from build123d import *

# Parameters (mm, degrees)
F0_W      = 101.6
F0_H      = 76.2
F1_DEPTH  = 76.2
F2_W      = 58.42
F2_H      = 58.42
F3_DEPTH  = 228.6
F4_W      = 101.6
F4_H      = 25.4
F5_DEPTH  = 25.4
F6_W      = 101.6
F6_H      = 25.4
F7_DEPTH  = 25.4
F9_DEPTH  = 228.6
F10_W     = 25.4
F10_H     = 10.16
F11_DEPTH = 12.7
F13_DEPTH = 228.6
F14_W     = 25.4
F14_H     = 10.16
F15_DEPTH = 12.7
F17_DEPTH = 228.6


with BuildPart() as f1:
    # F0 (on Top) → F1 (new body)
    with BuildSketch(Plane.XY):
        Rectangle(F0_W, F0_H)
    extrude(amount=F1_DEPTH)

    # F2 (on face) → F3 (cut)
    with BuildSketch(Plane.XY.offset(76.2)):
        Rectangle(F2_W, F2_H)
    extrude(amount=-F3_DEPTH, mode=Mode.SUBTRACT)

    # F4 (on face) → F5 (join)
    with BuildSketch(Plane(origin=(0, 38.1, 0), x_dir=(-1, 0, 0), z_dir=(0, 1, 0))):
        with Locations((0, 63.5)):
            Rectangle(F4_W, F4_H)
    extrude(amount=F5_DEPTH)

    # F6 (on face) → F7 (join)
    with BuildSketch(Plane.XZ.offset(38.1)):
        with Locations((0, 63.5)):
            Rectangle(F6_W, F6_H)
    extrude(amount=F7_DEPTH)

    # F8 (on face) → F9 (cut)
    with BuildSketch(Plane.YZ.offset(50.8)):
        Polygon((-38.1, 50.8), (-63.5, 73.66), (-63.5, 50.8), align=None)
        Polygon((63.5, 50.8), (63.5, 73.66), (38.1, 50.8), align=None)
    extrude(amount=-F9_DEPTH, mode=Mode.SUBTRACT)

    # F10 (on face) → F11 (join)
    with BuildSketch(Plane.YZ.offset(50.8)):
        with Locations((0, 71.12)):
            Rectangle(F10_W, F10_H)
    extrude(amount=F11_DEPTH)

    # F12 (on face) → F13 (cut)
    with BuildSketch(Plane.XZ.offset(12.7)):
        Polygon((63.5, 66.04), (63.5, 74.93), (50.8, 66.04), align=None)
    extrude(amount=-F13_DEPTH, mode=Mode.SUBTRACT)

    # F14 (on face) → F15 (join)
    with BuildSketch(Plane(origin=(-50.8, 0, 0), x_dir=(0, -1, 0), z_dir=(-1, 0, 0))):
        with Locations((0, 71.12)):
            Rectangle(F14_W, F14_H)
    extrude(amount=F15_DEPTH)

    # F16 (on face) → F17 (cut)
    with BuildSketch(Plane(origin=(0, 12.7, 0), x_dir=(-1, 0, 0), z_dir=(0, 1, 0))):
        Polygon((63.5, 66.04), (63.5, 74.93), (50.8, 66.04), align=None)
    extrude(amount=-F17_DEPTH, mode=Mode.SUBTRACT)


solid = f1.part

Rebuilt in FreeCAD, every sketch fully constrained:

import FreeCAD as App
import Part
import Sketcher
from FreeCAD import Vector
Q = App.Units.Quantity


def add_polygon(sketch, points):
    """Adds a closed chain of lines whose ends are joined by coincident constraints."""
    first, n = sketch.GeometryCount, len(points)
    for a, b in zip(points, points[1:] + points[:1]):
        sketch.addGeometry(Part.LineSegment(App.Vector(*a, 0), App.Vector(*b, 0)), False)
    for i in range(n):
        sketch.addConstraint(Sketcher.Constraint("Coincident", first + i, 2, first + (i + 1) % n, 1))

doc = App.newDocument("Part")
body = doc.addObject("PartDesign::Body", "Body")

# Sketch on XY plane
sketch1 = body.newObject("Sketcher::SketchObject", "Sketch")
sketch1.AttachmentSupport = (doc.getObject("XY_Plane"), [""])
sketch1.MapMode = "FlatFace"
add_polygon(sketch1, [(-51, 38), (-51, -38), (51, -38), (51, 38)])  # lines 0-3
sketch1.addConstraint([
    Sketcher.Constraint("Vertical", 0),
    Sketcher.Constraint("Horizontal", 1),
    Sketcher.Constraint("Vertical", 2),
    Sketcher.Constraint("Horizontal", 3),
    Sketcher.Constraint("Symmetric", 0, 2, 2, 2, -1, 1),
    Sketcher.Constraint("DistanceX", 1, 1, 1, 2, Q("4 in")),
    Sketcher.Constraint("DistanceY", 0, 2, 0, 1, Q("3 in")),
])
pad1 = body.newObject("PartDesign::Pad", "Pad")
pad1.Profile = sketch1
pad1.Length = Q("3 in")

# Sketch on XY plane
sketch2 = body.newObject("Sketcher::SketchObject", "Sketch001")
sketch2.AttachmentSupport = (doc.getObject("XY_Plane"), [""])
sketch2.MapMode = "FlatFace"
sketch2.AttachmentOffset = App.Placement(Vector(0, 0, 3 * 25.4), App.Rotation())
add_polygon(sketch2, [(-29, 29), (-29, -29), (29, -29), (29, 29)])  # lines 0-3
sketch2.addConstraint([
    Sketcher.Constraint("Vertical", 0),
    Sketcher.Constraint("Horizontal", 1),
    Sketcher.Constraint("Vertical", 2),
    Sketcher.Constraint("Horizontal", 3),
    Sketcher.Constraint("Symmetric", 0, 2, 2, 2, -1, 1),
    Sketcher.Constraint("Equal", 3, 0),
    Sketcher.Constraint("DistanceX", 1, 1, 1, 2, Q("2.3 in")),
])
pocket1 = body.newObject("PartDesign::Pocket", "Pocket")
pocket1.Profile = sketch2
pocket1.Length = Q("9 in")

# Sketch on XZ plane
sketch3 = body.newObject("Sketcher::SketchObject", "Sketch002")
sketch3.AttachmentSupport = (doc.getObject("XZ_Plane"), [""])
sketch3.MapMode = "FlatFace"
sketch3.AttachmentOffset = App.Placement(Vector(0, 0, -1.5 * 25.4), App.Rotation())
add_polygon(sketch3, [(51, 76), (51, 51), (-51, 51), (-51, 76)])  # lines 0-3
sketch3.addConstraint([
    Sketcher.Constraint("Vertical", 0),
    Sketcher.Constraint("Horizontal", 1),
    Sketcher.Constraint("Vertical", 2),
    Sketcher.Constraint("Horizontal", 3),
    Sketcher.Constraint("DistanceX", 1, 2, 1, 1, Q("4 in")),
    Sketcher.Constraint("DistanceY", 0, 2, 0, 1, Q("1 in")),
    Sketcher.Constraint("DistanceX", -1, 1, 0, 2, Q("2 in")),
    Sketcher.Constraint("DistanceY", -1, 1, 0, 2, Q("2 in")),
])
pad2 = body.newObject("PartDesign::Pad", "Pad001")
pad2.Profile = sketch3
pad2.Length = Q("1 in")
pad2.Reversed = True

# Sketch on XZ plane
sketch4 = body.newObject("Sketcher::SketchObject", "Sketch003")
sketch4.AttachmentSupport = (doc.getObject("XZ_Plane"), [""])
sketch4.MapMode = "FlatFace"
sketch4.AttachmentOffset = App.Placement(Vector(0, 0, 1.5 * 25.4), App.Rotation())
add_polygon(sketch4, [(-51, 76), (-51, 51), (51, 51), (51, 76)])  # lines 0-3
sketch4.addConstraint([
    Sketcher.Constraint("Vertical", 0),
    Sketcher.Constraint("Horizontal", 1),
    Sketcher.Constraint("Vertical", 2),
    Sketcher.Constraint("Horizontal", 3),
    Sketcher.Constraint("DistanceX", 1, 1, 1, 2, Q("4 in")),
    Sketcher.Constraint("DistanceY", 0, 2, 0, 1, Q("1 in")),
    Sketcher.Constraint("DistanceX", 0, 2, -1, 1, Q("2 in")),
    Sketcher.Constraint("DistanceY", -1, 1, 0, 2, Q("2 in")),
])
pad3 = body.newObject("PartDesign::Pad", "Pad002")
pad3.Profile = sketch4
pad3.Length = Q("1 in")

# Sketch on YZ plane
sketch5 = body.newObject("Sketcher::SketchObject", "Sketch004")
sketch5.AttachmentSupport = (doc.getObject("YZ_Plane"), [""])
sketch5.MapMode = "FlatFace"
sketch5.AttachmentOffset = App.Placement(Vector(0, 0, 2 * 25.4), App.Rotation())
add_polygon(sketch5, [(-38, 51), (-64, 74), (-64, 51)])  # lines 0-2
add_polygon(sketch5, [(64, 51), (64, 74), (38, 51)])  # lines 3-5
sketch5.addConstraint([
    Sketcher.Constraint("Vertical", 1),
    Sketcher.Constraint("Horizontal", 2),
    Sketcher.Constraint("Vertical", 3),
    Sketcher.Constraint("Horizontal", 5),
    Sketcher.Constraint("Symmetric", 0, 2, 3, 2, -2),
    Sketcher.Constraint("Symmetric", 2, 2, 4, 2, -2),
    Sketcher.Constraint("DistanceX", 2, 1, 2, 2, Q("1 in")),
    Sketcher.Constraint("DistanceY", 1, 2, 1, 1, Q("0.9 in")),
    Sketcher.Constraint("DistanceY", -1, 1, 1, 2, Q("2 in")),
    Sketcher.Constraint("DistanceX", 2, 2, 3, 2, Q("4 in")),
])
pocket2 = body.newObject("PartDesign::Pocket", "Pocket001")
pocket2.Profile = sketch5
pocket2.Length = Q("9 in")

# Sketch on YZ plane
sketch6 = body.newObject("Sketcher::SketchObject", "Sketch005")
sketch6.AttachmentSupport = (doc.getObject("YZ_Plane"), [""])
sketch6.MapMode = "FlatFace"
sketch6.AttachmentOffset = App.Placement(Vector(0, 0, 2 * 25.4), App.Rotation())
add_polygon(sketch6, [(-13, 76), (-13, 66), (13, 66), (13, 76)])  # lines 0-3
sketch6.addConstraint([
    Sketcher.Constraint("Vertical", 0),
    Sketcher.Constraint("Horizontal", 1),
    Sketcher.Constraint("Vertical", 2),
    Sketcher.Constraint("Horizontal", 3),
    Sketcher.Constraint("DistanceX", 1, 1, 1, 2, Q("1 in")),
    Sketcher.Constraint("DistanceY", 0, 2, 0, 1, Q("0.4 in")),
    Sketcher.Constraint("DistanceY", -1, 1, 2, 2, Q("3 in")),
    Sketcher.Constraint("DistanceX", 0, 2, -1, 1, Q("0.5 in")),
])
pad4 = body.newObject("PartDesign::Pad", "Pad003")
pad4.Profile = sketch6
pad4.Length = Q("0.5 in")

# Sketch on XZ plane
sketch7 = body.newObject("Sketcher::SketchObject", "Sketch006")
sketch7.AttachmentSupport = (doc.getObject("XZ_Plane"), [""])
sketch7.MapMode = "FlatFace"
sketch7.AttachmentOffset = App.Placement(Vector(0, 0, 0.5 * 25.4), App.Rotation())
add_polygon(sketch7, [(64, 66), (64, 75), (51, 66)])  # lines 0-2
sketch7.addConstraint([
    Sketcher.Constraint("Vertical", 0),
    Sketcher.Constraint("Horizontal", 2),
    Sketcher.Constraint("DistanceX", 2, 1, 2, 2, Q("0.5 in")),
    Sketcher.Constraint("DistanceX", -1, 1, 1, 2, Q("2 in")),
    Sketcher.Constraint("DistanceY", 0, 1, 0, 2, Q("0.35 in")),
    Sketcher.Constraint("DistanceY", -1, 1, 1, 2, Q("2.6 in")),
])
pocket3 = body.newObject("PartDesign::Pocket", "Pocket002")
pocket3.Profile = sketch7
pocket3.Length = Q("9 in")

# Sketch on YZ plane
sketch8 = body.newObject("Sketcher::SketchObject", "Sketch007")
sketch8.AttachmentSupport = (doc.getObject("YZ_Plane"), [""])
sketch8.MapMode = "FlatFace"
sketch8.AttachmentOffset = App.Placement(Vector(0, 0, -2 * 25.4), App.Rotation())
add_polygon(sketch8, [(13, 76), (13, 66), (-13, 66), (-13, 76)])  # lines 0-3
sketch8.addConstraint([
    Sketcher.Constraint("Vertical", 0),
    Sketcher.Constraint("Horizontal", 1),
    Sketcher.Constraint("Vertical", 2),
    Sketcher.Constraint("Horizontal", 3),
    Sketcher.Constraint("DistanceX", 1, 2, 1, 1, Q("1 in")),
    Sketcher.Constraint("DistanceY", 0, 2, 0, 1, Q("0.4 in")),
    Sketcher.Constraint("DistanceY", -1, 1, 2, 2, Q("3 in")),
    Sketcher.Constraint("DistanceX", -1, 1, 0, 2, Q("0.5 in")),
])
pad5 = body.newObject("PartDesign::Pad", "Pad004")
pad5.Profile = sketch8
pad5.Length = Q("0.5 in")
pad5.Reversed = True

# Sketch on XZ plane
sketch9 = body.newObject("Sketcher::SketchObject", "Sketch008")
sketch9.AttachmentSupport = (doc.getObject("XZ_Plane"), [""])
sketch9.MapMode = "FlatFace"
sketch9.AttachmentOffset = App.Placement(Vector(0, 0, -0.5 * 25.4), App.Rotation())
add_polygon(sketch9, [(-64, 66), (-64, 75), (-51, 66)])  # lines 0-2
sketch9.addConstraint([
    Sketcher.Constraint("Vertical", 0),
    Sketcher.Constraint("Horizontal", 2),
    Sketcher.Constraint("DistanceX", 2, 2, 2, 1, Q("0.5 in")),
    Sketcher.Constraint("DistanceX", 1, 2, -1, 1, Q("2 in")),
    Sketcher.Constraint("DistanceY", 0, 1, 0, 2, Q("0.35 in")),
    Sketcher.Constraint("DistanceY", -1, 1, 1, 2, Q("2.6 in")),
])
pocket4 = body.newObject("PartDesign::Pocket", "Pocket003")
pocket4.Profile = sketch9
pocket4.Length = Q("9 in")
pocket4.Reversed = True

doc.recompute()
